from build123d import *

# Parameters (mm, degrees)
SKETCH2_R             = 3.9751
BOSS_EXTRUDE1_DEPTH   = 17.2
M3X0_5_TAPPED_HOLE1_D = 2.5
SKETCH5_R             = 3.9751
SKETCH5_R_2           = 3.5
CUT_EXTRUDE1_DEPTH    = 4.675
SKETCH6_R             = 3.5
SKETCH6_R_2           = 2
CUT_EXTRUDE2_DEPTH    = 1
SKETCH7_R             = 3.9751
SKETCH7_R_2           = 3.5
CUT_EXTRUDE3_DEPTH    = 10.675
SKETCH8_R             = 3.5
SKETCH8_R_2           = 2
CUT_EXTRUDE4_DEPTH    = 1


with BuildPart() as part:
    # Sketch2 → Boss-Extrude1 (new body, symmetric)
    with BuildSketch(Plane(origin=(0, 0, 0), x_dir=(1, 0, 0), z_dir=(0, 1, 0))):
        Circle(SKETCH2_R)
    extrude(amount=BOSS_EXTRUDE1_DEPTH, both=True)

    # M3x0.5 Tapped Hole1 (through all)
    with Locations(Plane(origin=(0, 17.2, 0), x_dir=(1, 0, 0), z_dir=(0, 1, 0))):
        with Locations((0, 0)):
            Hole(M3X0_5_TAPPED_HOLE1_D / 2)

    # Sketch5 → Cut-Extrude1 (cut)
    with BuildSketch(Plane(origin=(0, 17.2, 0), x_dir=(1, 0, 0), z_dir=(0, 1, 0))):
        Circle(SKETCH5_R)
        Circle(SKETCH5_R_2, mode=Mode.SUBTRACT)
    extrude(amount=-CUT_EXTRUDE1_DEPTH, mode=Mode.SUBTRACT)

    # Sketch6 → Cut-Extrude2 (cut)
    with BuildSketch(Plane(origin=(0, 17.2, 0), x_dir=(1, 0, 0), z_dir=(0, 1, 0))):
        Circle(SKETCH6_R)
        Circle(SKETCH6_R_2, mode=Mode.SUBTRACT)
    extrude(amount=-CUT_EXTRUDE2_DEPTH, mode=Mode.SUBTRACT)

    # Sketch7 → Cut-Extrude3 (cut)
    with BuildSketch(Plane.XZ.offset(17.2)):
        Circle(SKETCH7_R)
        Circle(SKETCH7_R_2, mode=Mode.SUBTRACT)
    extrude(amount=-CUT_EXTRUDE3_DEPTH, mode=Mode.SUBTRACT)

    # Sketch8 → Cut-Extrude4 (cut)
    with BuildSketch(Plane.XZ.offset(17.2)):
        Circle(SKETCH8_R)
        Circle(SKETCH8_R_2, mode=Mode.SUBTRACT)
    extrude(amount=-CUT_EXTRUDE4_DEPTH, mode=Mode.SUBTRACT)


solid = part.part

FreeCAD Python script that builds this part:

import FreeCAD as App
import Part
import Sketcher

doc = App.newDocument("Part")
body = doc.addObject("PartDesign::Body", "Body")

sketch1 = doc.addObject("Sketcher::SketchObject", "Sketch")
body.addObject(sketch1)
sketch1.AttachmentSupport = (doc.XZ_Plane, [""])
sketch1.MapMode = "FlatFace"
sketch1.addGeometry(Part.Circle(App.Vector(0, 0, 0), App.Vector(0, 0, 1), 4), False)
sketch1.addConstraint(Sketcher.Constraint("Coincident", 0, 3, -1, 1))
sketch1.addConstraint(Sketcher.Constraint("Diameter", 0, 7.9502))
pad1 = doc.addObject("PartDesign::Pad", "Pad")
body.addObject(pad1)
pad1.Profile = sketch1
pad1.Length = 34.4
pad1.Midplane = True

sketch2 = doc.addObject("Sketcher::SketchObject", "Sketch001")
body.addObject(sketch2)
sketch2.AttachmentSupport = (doc.XZ_Plane, [""])
sketch2.MapMode = "FlatFace"
sketch2.AttachmentOffset = App.Placement(App.Vector(0, 0, -17.2), App.Rotation())
sketch2.addGeometry(Part.Circle(App.Vector(0, 0, 0), App.Vector(0, 0, 1), 1.2), False)
sketch2.addConstraint(Sketcher.Constraint("Coincident", 0, 3, -1, 1))
sketch2.addConstraint(Sketcher.Constraint("Diameter", 0, 2.5))
doc.recompute()
hole = doc.addObject("PartDesign::Hole", "Hole")
body.addObject(hole)
hole.Profile = sketch2
hole.ThreadType = "None"
hole.Diameter = 2.5
hole.DepthType = "ThroughAll"
hole.Reversed = True

sketch3 = doc.addObject("Sketcher::SketchObject", "Sketch002")
body.addObject(sketch3)
sketch3.AttachmentSupport = (doc.XZ_Plane, [""])
sketch3.MapMode = "FlatFace"
sketch3.AttachmentOffset = App.Placement(App.Vector(0, 0, -17.2), App.Rotation())
sketch3.addGeometry(Part.Circle(App.Vector(0, 0, 0), App.Vector(0, 0, 1), 4), False)
sketch3.addGeometry(Part.Circle(App.Vector(0, 0, 0), App.Vector(0, 0, 1), 3.5), False)
sketch3.addConstraint(Sketcher.Constraint("Coincident", 0, 3, -1, 1))
sketch3.addConstraint(Sketcher.Constraint("Coincident", 1, 3, -1, 1))
sketch3.addConstraint(Sketcher.Constraint("Diameter", 1, 7.0))
sketch3.addConstraint(Sketcher.Constraint("Diameter", 0, 7.9502))
pocket1 = doc.addObject("PartDesign::Pocket", "Pocket")
body.addObject(pocket1)
pocket1.Profile = sketch3
pocket1.Length = 4.675
pocket1.Reversed = True

sketch4 = doc.addObject("Sketcher::SketchObject", "Sketch003")
body.addObject(sketch4)
sketch4.AttachmentSupport = (doc.XZ_Plane, [""])
sketch4.MapMode = "FlatFace"
sketch4.AttachmentOffset = App.Placement(App.Vector(0, 0, -17.2), App.Rotation())
sketch4.addGeometry(Part.Circle(App.Vector(0, 0, 0), App.Vector(0, 0, 1), 3.5), False)
sketch4.addGeometry(Part.Circle(App.Vector(0, 0, 0), App.Vector(0, 0, 1), 2), False)
sketch4.addConstraint(Sketcher.Constraint("Coincident", 0, 3, -1, 1))
sketch4.addConstraint(Sketcher.Constraint("Coincident", 1, 3, -1, 1))
sketch4.addConstraint(Sketcher.Constraint("Diameter", 0, 7.0))
sketch4.addConstraint(Sketcher.Constraint("Diameter", 1, 4.0))
pocket2 = doc.addObject("PartDesign::Pocket", "Pocket001")
body.addObject(pocket2)
pocket2.Profile = sketch4
pocket2.Length = 1
pocket2.Reversed = True

sketch5 = doc.addObject("Sketcher::SketchObject", "Sketch004")
body.addObject(sketch5)
sketch5.AttachmentSupport = (doc.XZ_Plane, [""])
sketch5.MapMode = "FlatFace"
sketch5.AttachmentOffset = App.Placement(App.Vector(0, 0, 17.2), App.Rotation())
sketch5.addGeometry(Part.Circle(App.Vector(0, 0, 0), App.Vector(0, 0, 1), 4), False)
sketch5.addGeometry(Part.Circle(App.Vector(0, 0, 0), App.Vector(0, 0, 1), 3.5), False)
sketch5.addConstraint(Sketcher.Constraint("Coincident", 0, 3, -1, 1))
sketch5.addConstraint(Sketcher.Constraint("Coincident", 1, 3, -1, 1))
sketch5.addConstraint(Sketcher.Constraint("Diameter", 1, 7.0))
sketch5.addConstraint(Sketcher.Constraint("Diameter", 0, 7.9502))
pocket3 = doc.addObject("PartDesign::Pocket", "Pocket002")
body.addObject(pocket3)
pocket3.Profile = sketch5
pocket3.Length = 10.675

sketch6 = doc.addObject("Sketcher::SketchObject", "Sketch005")
body.addObject(sketch6)
sketch6.AttachmentSupport = (doc.XZ_Plane, [""])
sketch6.MapMode = "FlatFace"
sketch6.AttachmentOffset = App.Placement(App.Vector(0, 0, 17.2), App.Rotation())
sketch6.addGeometry(Part.Circle(App.Vector(0, 0, 0), App.Vector(0, 0, 1), 3.5), False)
sketch6.addGeometry(Part.Circle(App.Vector(0, 0, 0), App.Vector(0, 0, 1), 2), False)
sketch6.addConstraint(Sketcher.Constraint("Coincident", 0, 3, -1, 1))
sketch6.addConstraint(Sketcher.Constraint("Coincident", 1, 3, -1, 1))
sketch6.addConstraint(Sketcher.Constraint("Diameter", 0, 7.0))
sketch6.addConstraint(Sketcher.Constraint("Diameter", 1, 4.0))
pocket4 = doc.addObject("PartDesign::Pocket", "Pocket003")
body.addObject(pocket4)
pocket4.Profile = sketch6
pocket4.Length = 1

doc.recompute()
